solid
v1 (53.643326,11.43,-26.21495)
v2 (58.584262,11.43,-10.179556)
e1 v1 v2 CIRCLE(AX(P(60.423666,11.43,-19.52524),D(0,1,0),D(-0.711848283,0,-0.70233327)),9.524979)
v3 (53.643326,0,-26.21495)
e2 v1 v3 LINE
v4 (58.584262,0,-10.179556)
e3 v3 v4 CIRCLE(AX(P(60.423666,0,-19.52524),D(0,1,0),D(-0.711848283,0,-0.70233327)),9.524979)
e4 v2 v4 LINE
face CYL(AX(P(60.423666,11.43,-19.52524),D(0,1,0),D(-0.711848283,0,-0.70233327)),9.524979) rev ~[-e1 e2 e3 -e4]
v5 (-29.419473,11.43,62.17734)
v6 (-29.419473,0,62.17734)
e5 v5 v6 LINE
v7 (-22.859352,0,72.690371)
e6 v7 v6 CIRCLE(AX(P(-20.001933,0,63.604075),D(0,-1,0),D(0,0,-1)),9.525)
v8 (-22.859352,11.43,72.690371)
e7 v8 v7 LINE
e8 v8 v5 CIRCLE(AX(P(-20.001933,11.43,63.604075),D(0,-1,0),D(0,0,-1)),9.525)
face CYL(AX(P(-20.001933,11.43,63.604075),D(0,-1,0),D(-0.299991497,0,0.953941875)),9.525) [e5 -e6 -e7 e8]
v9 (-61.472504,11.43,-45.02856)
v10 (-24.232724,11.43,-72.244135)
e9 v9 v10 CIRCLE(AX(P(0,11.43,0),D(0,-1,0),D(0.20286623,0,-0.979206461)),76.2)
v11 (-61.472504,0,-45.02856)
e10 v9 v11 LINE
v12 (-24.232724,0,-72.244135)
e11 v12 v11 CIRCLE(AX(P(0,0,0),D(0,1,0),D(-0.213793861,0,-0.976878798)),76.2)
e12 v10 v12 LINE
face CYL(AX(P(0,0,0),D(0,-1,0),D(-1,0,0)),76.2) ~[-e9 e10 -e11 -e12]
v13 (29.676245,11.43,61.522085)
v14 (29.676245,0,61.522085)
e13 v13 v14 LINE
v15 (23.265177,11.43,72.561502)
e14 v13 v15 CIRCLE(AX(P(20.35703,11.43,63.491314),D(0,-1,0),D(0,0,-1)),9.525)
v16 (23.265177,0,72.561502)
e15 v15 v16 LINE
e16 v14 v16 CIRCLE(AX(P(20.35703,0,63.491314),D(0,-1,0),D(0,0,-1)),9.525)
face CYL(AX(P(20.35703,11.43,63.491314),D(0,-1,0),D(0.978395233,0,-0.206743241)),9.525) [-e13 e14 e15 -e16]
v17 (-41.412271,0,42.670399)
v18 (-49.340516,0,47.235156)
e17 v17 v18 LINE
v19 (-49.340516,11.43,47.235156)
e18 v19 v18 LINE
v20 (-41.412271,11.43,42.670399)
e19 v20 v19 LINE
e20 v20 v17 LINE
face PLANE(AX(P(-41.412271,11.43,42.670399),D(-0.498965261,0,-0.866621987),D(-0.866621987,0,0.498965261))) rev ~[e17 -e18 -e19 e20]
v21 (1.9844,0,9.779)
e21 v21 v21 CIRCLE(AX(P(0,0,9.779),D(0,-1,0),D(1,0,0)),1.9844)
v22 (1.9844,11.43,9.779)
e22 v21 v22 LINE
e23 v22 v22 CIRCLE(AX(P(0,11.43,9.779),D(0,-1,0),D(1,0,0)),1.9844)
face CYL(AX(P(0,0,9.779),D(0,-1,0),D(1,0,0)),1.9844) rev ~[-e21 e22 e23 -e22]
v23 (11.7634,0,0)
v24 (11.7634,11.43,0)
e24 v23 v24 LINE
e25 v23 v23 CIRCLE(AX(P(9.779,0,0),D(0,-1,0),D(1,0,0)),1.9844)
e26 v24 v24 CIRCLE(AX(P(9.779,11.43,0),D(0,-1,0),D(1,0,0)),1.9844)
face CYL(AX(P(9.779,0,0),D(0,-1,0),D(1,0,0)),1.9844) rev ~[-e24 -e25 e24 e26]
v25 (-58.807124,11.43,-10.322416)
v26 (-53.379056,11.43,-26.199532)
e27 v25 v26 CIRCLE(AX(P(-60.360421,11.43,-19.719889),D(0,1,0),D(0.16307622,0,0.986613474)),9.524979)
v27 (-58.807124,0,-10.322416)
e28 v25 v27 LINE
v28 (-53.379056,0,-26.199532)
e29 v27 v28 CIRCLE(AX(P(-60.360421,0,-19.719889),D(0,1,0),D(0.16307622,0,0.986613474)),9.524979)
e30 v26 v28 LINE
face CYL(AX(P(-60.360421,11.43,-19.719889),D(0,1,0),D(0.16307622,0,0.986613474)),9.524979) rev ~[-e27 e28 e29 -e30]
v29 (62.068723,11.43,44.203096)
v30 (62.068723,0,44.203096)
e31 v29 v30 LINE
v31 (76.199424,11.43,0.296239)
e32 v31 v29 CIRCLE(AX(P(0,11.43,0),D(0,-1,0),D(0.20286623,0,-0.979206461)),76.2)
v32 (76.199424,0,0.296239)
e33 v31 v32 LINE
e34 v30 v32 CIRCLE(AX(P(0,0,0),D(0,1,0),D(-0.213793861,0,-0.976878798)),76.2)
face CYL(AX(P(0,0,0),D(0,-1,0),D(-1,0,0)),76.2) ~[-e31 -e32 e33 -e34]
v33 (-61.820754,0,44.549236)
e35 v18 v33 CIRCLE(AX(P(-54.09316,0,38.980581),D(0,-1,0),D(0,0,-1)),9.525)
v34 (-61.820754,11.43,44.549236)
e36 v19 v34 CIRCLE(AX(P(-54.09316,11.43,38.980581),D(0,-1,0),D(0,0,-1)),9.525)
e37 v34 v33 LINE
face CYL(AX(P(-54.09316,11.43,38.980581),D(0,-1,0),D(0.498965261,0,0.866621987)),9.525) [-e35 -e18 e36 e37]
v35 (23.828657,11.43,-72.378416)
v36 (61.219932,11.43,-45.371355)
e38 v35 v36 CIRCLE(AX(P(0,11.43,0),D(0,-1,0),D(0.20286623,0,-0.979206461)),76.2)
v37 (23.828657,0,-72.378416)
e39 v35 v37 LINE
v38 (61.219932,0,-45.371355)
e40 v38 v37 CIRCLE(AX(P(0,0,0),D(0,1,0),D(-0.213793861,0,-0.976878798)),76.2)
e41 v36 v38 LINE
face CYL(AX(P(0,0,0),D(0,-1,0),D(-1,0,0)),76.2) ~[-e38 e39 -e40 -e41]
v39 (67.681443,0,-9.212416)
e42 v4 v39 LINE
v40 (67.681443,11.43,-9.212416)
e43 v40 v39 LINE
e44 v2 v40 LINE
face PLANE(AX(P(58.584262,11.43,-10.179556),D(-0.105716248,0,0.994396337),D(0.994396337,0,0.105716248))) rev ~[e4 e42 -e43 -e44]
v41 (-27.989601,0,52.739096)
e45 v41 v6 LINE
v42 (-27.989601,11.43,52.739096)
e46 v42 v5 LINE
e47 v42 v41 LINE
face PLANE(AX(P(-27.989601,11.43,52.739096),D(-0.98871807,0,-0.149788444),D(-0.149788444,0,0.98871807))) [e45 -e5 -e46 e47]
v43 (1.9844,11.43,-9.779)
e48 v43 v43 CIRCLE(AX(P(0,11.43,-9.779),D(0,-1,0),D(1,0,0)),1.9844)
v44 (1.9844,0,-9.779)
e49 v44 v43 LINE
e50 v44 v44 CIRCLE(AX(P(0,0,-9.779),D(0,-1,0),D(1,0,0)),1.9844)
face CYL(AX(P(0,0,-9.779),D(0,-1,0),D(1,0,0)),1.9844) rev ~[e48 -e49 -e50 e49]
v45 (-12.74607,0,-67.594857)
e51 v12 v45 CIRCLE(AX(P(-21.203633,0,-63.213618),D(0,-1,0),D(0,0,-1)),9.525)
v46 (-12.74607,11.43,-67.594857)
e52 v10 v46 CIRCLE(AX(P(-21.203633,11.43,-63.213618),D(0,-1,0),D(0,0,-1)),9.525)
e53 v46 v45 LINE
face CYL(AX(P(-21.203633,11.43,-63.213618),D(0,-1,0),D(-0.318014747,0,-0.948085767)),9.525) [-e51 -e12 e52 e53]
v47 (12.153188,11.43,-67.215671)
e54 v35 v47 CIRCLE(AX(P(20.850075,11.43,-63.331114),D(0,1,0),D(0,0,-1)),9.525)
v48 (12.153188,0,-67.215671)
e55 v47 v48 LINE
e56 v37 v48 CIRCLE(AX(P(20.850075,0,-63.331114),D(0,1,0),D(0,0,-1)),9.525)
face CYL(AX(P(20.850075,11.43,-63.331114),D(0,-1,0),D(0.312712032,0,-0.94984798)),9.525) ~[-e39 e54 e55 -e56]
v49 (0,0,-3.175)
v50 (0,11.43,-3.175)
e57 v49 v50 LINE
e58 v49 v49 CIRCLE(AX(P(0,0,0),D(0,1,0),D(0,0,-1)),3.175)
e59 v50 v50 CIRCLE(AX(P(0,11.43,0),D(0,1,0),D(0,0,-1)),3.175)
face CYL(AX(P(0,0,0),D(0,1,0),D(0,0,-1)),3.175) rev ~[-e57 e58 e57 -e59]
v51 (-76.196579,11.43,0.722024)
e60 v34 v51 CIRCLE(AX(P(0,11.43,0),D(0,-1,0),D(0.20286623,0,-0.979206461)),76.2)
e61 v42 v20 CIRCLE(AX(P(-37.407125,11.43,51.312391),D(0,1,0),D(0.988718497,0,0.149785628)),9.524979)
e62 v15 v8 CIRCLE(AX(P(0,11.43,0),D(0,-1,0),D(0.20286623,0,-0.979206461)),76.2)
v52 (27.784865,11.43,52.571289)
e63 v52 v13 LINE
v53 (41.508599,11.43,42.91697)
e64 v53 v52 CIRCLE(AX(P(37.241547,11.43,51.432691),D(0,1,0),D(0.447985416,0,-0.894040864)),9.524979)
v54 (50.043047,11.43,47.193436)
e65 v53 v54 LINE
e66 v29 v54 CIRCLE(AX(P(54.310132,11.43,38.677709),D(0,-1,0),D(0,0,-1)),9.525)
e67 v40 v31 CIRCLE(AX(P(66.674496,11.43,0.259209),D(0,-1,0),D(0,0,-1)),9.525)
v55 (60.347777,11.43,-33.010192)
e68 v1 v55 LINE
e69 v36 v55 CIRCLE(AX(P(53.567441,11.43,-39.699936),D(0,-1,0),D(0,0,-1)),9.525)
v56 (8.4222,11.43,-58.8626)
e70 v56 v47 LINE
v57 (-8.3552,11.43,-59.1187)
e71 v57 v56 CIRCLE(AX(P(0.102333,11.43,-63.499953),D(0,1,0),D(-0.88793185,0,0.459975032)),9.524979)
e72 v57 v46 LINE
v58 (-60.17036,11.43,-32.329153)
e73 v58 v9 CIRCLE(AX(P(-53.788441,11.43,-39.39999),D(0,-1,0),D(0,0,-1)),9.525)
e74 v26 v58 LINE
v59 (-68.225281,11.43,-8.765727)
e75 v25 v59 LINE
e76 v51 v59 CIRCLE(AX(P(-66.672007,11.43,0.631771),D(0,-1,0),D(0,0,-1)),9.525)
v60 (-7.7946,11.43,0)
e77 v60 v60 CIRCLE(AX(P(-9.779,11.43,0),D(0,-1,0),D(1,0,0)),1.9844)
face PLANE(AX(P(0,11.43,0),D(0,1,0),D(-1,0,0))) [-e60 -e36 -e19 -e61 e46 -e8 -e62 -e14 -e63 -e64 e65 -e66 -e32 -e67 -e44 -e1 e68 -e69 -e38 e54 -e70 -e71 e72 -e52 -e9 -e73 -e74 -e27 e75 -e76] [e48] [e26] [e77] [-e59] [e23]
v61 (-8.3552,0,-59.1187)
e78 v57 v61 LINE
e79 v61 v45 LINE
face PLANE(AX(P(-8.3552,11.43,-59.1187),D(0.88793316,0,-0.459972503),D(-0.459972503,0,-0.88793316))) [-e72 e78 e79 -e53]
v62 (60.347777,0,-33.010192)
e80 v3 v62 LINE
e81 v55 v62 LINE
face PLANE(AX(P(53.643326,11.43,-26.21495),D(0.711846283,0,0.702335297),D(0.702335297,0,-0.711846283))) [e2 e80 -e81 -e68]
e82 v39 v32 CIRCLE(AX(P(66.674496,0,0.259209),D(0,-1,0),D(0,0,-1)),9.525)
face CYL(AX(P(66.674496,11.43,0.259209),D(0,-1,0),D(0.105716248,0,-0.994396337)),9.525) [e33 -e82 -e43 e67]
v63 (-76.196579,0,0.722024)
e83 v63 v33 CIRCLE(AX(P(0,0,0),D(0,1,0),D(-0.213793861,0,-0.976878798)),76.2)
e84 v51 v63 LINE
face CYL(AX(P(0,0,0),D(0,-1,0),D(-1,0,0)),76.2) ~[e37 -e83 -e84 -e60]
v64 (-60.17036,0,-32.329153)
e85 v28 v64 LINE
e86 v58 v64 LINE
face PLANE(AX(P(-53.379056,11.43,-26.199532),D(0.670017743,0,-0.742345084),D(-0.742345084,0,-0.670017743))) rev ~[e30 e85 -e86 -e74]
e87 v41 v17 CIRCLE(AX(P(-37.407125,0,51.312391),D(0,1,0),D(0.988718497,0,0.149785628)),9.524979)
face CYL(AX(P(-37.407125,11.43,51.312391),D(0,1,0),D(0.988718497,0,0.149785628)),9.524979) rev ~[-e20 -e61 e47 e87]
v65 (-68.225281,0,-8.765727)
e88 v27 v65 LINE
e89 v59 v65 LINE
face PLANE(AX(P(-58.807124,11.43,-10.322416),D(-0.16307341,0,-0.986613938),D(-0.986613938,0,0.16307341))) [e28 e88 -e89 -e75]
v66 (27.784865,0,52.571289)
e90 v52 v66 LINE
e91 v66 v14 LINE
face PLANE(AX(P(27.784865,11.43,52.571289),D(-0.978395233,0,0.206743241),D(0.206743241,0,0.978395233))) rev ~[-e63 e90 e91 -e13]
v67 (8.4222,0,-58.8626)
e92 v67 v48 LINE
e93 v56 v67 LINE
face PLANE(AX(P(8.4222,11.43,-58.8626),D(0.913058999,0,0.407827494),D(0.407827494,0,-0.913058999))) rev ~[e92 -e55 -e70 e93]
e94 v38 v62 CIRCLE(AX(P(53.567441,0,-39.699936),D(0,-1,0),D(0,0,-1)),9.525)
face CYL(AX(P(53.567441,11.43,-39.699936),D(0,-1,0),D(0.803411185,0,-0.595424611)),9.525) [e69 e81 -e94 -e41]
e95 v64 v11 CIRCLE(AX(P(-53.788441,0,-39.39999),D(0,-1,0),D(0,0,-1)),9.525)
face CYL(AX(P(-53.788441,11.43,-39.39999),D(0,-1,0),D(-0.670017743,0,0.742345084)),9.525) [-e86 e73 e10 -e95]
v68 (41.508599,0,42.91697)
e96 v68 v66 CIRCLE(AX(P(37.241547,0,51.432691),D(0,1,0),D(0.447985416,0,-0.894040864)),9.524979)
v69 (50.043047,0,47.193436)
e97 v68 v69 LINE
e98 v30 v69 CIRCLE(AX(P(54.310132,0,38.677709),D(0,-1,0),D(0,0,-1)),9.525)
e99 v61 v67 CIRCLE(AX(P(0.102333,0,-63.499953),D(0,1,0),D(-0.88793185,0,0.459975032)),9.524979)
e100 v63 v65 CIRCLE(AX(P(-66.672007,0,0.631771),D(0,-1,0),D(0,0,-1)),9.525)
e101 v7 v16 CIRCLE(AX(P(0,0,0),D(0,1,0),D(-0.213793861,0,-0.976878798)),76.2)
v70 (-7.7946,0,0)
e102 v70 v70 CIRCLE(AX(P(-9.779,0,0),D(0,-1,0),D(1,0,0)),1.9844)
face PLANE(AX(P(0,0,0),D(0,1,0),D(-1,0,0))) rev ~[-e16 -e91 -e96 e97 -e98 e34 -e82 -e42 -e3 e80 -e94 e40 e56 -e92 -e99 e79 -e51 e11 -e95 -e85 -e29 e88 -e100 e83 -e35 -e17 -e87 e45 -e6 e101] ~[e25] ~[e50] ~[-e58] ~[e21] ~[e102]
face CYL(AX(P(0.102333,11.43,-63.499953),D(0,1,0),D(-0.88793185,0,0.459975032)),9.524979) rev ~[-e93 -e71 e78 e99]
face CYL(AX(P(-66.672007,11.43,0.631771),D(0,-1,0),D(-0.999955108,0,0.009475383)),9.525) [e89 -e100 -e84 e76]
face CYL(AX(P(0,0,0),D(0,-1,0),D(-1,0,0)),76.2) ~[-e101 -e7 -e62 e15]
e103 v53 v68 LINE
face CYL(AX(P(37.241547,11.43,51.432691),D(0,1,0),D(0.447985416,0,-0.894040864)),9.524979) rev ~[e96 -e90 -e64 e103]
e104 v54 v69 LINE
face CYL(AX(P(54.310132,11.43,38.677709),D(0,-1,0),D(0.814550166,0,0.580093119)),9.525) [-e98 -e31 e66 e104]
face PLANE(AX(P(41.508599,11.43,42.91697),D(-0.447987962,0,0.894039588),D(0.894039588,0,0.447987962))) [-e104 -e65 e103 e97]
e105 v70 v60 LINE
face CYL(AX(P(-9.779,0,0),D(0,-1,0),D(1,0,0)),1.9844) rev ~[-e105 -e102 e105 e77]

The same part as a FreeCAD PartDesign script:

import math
import FreeCAD as App
import Part
import Sketcher
Q = App.Units.Quantity


def edges_at(feature, points):
    """Names of the edges that pass closest to the given points."""
    edges = feature.Shape.Edges
    near = lambda p: min(range(len(edges)), key=lambda i: edges[i].distToShape(Part.Vertex(*p))[0])
    return sorted({f"Edge{near(p) + 1}" for p in points})

doc = App.newDocument("Part")
body = doc.addObject("PartDesign::Body", "Body")

# Sketch on XZ plane
sketch1 = doc.addObject("Sketcher::SketchObject", "Sketch")
body.addObject(sketch1)
sketch1.AttachmentSupport = (doc.XZ_Plane, [""])
sketch1.MapMode = "FlatFace"
sketch1.addGeometry(Part.Circle(App.Vector(0, 0, 0), App.Vector(0, 0, 1), 76), False)
sketch1.addConstraint(Sketcher.Constraint("Coincident", 0, 3, -1, 1))
sketch1.addConstraint(Sketcher.Constraint("Diameter", 0, Q("6 in")))
pad1 = doc.addObject("PartDesign::Pad", "Pad")
body.addObject(pad1)
pad1.Profile = sketch1
pad1.Length = Q("0.45 in")
pad1.Reversed = True

# Sketch on XZ plane
sketch2 = doc.addObject("Sketcher::SketchObject", "Sketch001")
body.addObject(sketch2)
sketch2.AttachmentSupport = (doc.XZ_Plane, [""])
sketch2.MapMode = "FlatFace"
sketch2.AttachmentOffset = App.Placement(App.Vector(0, 0, -0.45 * 25.4), App.Rotation())
sketch2.addGeometry(Part.LineSegment(App.Vector(8, -59, 0), App.Vector(15, -75, 0)), False)
sketch2.addGeometry(Part.ArcOfCircle(Part.Circle(App.Vector(0, 0, 0), App.Vector(0, 0, 1), 76), math.radians(-102), math.radians(-78)), False)
sketch2.addGeometry(Part.LineSegment(App.Vector(-16, -74, 0), App.Vector(-8, -59, 0)), False)
sketch2.addGeometry(Part.ArcOfCircle(Part.Circle(App.Vector(0, -63, 0), App.Vector(0, 0, 1), 10), math.radians(29), math.radians(153)), False)
sketch2.addConstraint(Sketcher.Constraint("Coincident", 0, 2, 1, 2))
sketch2.addConstraint(Sketcher.Constraint("Coincident", 1, 1, 2, 1))
sketch2.addConstraint(Sketcher.Constraint("Tangent", 2, 2, 3, 2))
sketch2.addConstraint(Sketcher.Constraint("Coincident", 3, 1, 0, 1))
sketch2.addConstraint(Sketcher.Constraint("Coincident", 1, 3, -1, 1))
sketch2.addConstraint(Sketcher.Constraint("Equal", 0, 2))
sketch2.addConstraint(Sketcher.Constraint("Radius", 1, Q("3 in")))
sketch2.addConstraint(Sketcher.Constraint("Radius", 3, Q("0.375 in")))
sketch2.addConstraint(Sketcher.Constraint("DistanceY", 3, 3, -1, 1, Q("2.5 in")))
sketch2.addConstraint(Sketcher.Constraint("DistanceX", 1, 1, 0, 2, 31.7495))
sketch2.addConstraint(Sketcher.Constraint("DistanceX", -1, 1, 0, 2, Q("0.6086 in")))
sketch2.addConstraint(Sketcher.Constraint("DistanceY", 2, 2, -1, 1, Q("2.3275 in")))
pocket1 = doc.addObject("PartDesign::Pocket", "Pocket")
body.addObject(pocket1)
pocket1.Profile = sketch2
pocket1.Type = "ThroughAll"
pocket1.Reversed = True
doc.recompute()

fillet = doc.addObject("PartDesign::Fillet", "Fillet")
body.addObject(fillet)
fillet.Base = (pocket1, edges_at(pocket1, [(-16.291, 5.715, -74.438)]))
fillet.Radius = Q("0.375 in")
doc.recompute()

fillet2 = doc.addObject("PartDesign::Fillet", "Fillet001")
body.addObject(fillet2)
fillet2.Base = (fillet, edges_at(fillet, [(15.458, 5.715, -74.615)]))
fillet2.Radius = Q("0.375 in")
doc.recompute()

polarpattern = doc.addObject("PartDesign::PolarPattern", "PolarPattern")
body.addObject(polarpattern)
polarpattern.Originals = [pocket1, fillet, fillet2]
polarpattern.Axis = (doc.Y_Axis, [""])
polarpattern.Angle = 360
polarpattern.Occurrences = 5
body.Tip = polarpattern

# Sketch on XZ plane
sketch3 = doc.addObject("Sketcher::SketchObject", "Sketch002")
body.addObject(sketch3)
sketch3.AttachmentSupport = (doc.XZ_Plane, [""])
sketch3.MapMode = "FlatFace"
sketch3.addGeometry(Part.Circle(App.Vector(0, 0, 0), App.Vector(0, 0, 1), 3.2), False)
sketch3.addConstraint(Sketcher.Constraint("Coincident", 0, 3, -1, 1))
sketch3.addConstraint(Sketcher.Constraint("Diameter", 0, Q("0.25 in")))
doc.recompute()
hole = doc.addObject("PartDesign::Hole", "Hole")
body.addObject(hole)
hole.Profile = sketch3
hole.ThreadType = "None"
hole.Diameter = Q("0.25 in")
hole.DepthType = "ThroughAll"

# Sketch on XZ plane
sketch4 = doc.addObject("Sketcher::SketchObject", "Sketch003")
body.addObject(sketch4)
sketch4.AttachmentSupport = (doc.XZ_Plane, [""])
sketch4.MapMode = "FlatFace"
sketch4.addGeometry(Part.Circle(App.Vector(0, -9.8, 0), App.Vector(0, 0, 1), 2), False)
sketch4.addGeometry(Part.Circle(App.Vector(9.8, 0, 0), App.Vector(0, 0, 1), 2), False)
sketch4.addGeometry(Part.Circle(App.Vector(0, 9.8, 0), App.Vector(0, 0, 1), 2), False)
sketch4.addGeometry(Part.Circle(App.Vector(-9.8, 0, 0), App.Vector(0, 0, 1), 2), False)
sketch4.addConstraint(Sketcher.Constraint("Equal", 0, 1))
sketch4.addConstraint(Sketcher.Constraint("Equal", 1, 2))
sketch4.addConstraint(Sketcher.Constraint("Equal", 2, 3))
sketch4.addConstraint(Sketcher.Constraint("Symmetric", 0, 3, 2, 3, -1, 1))
sketch4.addConstraint(Sketcher.Constraint("Symmetric", 1, 3, 3, 3, -1, 1))
sketch4.addConstraint(Sketcher.Constraint("PointOnObject", 0, 3, -2))
sketch4.addConstraint(Sketcher.Constraint("PointOnObject", 1, 3, -1))
sketch4.addConstraint(Sketcher.Constraint("Diameter", 0, Q("0.156252 in")))
sketch4.addConstraint(Sketcher.Constraint("DistanceY", 0, 3, -1, 1, Q("0.385 in")))
sketch4.addConstraint(Sketcher.Constraint("DistanceX", -1, 1, 1, 3, Q("0.385 in")))
pocket2 = doc.addObject("PartDesign::Pocket", "Pocket001")
body.addObject(pocket2)
pocket2.Profile = sketch4
pocket2.Length = Q("0.5 in")

doc.recompute()
